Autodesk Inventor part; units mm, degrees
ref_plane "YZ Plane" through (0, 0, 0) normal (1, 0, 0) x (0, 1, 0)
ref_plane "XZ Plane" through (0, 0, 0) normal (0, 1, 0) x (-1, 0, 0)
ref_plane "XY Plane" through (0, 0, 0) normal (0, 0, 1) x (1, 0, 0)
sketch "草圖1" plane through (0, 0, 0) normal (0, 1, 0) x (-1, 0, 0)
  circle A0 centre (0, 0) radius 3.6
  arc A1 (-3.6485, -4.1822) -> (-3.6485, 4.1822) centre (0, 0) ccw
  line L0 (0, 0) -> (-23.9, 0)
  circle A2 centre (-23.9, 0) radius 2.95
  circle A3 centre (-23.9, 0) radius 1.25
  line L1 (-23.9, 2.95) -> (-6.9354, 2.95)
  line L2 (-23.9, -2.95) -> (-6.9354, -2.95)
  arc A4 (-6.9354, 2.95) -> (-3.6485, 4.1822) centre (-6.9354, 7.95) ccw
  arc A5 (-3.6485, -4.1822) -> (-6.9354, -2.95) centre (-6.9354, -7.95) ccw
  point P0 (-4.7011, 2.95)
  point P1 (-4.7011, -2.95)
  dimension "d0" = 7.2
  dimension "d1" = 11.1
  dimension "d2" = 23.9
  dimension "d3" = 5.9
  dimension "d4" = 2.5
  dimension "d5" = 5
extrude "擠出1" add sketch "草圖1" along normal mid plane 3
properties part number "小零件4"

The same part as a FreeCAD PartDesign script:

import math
import FreeCAD as App
import Part
import Sketcher
Q = App.Units.Quantity

doc = App.newDocument("Part")
params = doc.addObject("Spreadsheet::Sheet", "Params")
for row, (alias, value) in enumerate([
    ("sketch1_radius", "5 mm"),
    ("sketch1_diameter", "7.2 mm"),
    ("sketch1_diameter2", "2.5 mm"),
    ("sketch1_radius2", "2.95 mm"),
    ("sketch1_radius3", "5.55 mm"),
    ("pad1_length", "3 mm"),
], start=1):
    params.set(f"A{row}", alias)
    params.set(f"B{row}", "=" + value)
    params.setAlias(f"B{row}", alias)

body = doc.addObject("PartDesign::Body", "Body")

# Sketch on XZ plane
sketch1 = body.newObject("Sketcher::SketchObject", "Sketch")
sketch1.AttachmentSupport = (doc.getObject("XZ_Plane"), [""])
sketch1.MapMode = "FlatFace"
sketch1.addGeometry([
    Part.LineSegment(App.Vector(6.9, 3, 0), App.Vector(23.9, 3, 0)),  # 0
    Part.ArcOfCircle(Part.Circle(App.Vector(23.9, 0, 0), App.Vector(0, 0, 1), 3), math.radians(-90), math.radians(90)),  # 1
    Part.LineSegment(App.Vector(23.9, -3, 0), App.Vector(6.9, -3, 0)),  # 2
    Part.ArcOfCircle(Part.Circle(App.Vector(6.9, -8, 0), App.Vector(0, 0, 1), 5), math.radians(90), math.radians(131)),  # 3
    Part.ArcOfCircle(Part.Circle(App.Vector(0, 0, 0), App.Vector(0, 0, 1), 5.5), math.radians(49), math.radians(311)),  # 4
    Part.ArcOfCircle(Part.Circle(App.Vector(6.9, 8, 0), App.Vector(0, 0, 1), 5), math.radians(-131), math.radians(-90)),  # 5
    Part.Circle(App.Vector(0, 0, 0), App.Vector(0, 0, 1), 3.6),  # 6
    Part.Circle(App.Vector(23.9, 0, 0), App.Vector(0, 0, 1), 1.2),  # 7
], False)
sketch1.addConstraint([
    Sketcher.Constraint("Tangent", 0, 2, 1, 2),
    Sketcher.Constraint("Tangent", 1, 1, 2, 1),
    Sketcher.Constraint("Tangent", 2, 2, 3, 1),
    Sketcher.Constraint("Tangent", 3, 2, 4, 2),
    Sketcher.Constraint("Tangent", 4, 1, 5, 1),
    Sketcher.Constraint("Tangent", 5, 2, 0, 1),
    Sketcher.Constraint("Horizontal", 0),
    Sketcher.Constraint("Horizontal", 2),
    Sketcher.Constraint("Coincident", 4, 3, -1, 1),
    Sketcher.Constraint("Coincident", 6, 3, -1, 1),
    Sketcher.Constraint("Coincident", 7, 3, 1, 3),
    Sketcher.Constraint("Equal", 3, 5),
    Sketcher.Constraint("PointOnObject", 1, 3, -1),
    Sketcher.Constraint("Radius", 3, Q("5 mm")),
    Sketcher.Constraint("Diameter", 6, Q("7.2 mm")),
    Sketcher.Constraint("Diameter", 7, Q("2.5 mm")),
    Sketcher.Constraint("Radius", 1, Q("2.95 mm")),
    Sketcher.Constraint("Radius", 4, Q("5.55 mm")),
    Sketcher.Constraint("DistanceX", -1, 1, 1, 3, Q("23.9 mm")),
])
sketch1.setExpression("Constraints[13]", "Params.sketch1_radius")
sketch1.setExpression("Constraints[14]", "Params.sketch1_diameter")
sketch1.setExpression("Constraints[15]", "Params.sketch1_diameter2")
sketch1.setExpression("Constraints[16]", "Params.sketch1_radius2")
sketch1.setExpression("Constraints[17]", "Params.sketch1_radius3")
pad1 = body.newObject("PartDesign::Pad", "Pad")
pad1.Profile = sketch1
pad1.setExpression("Length", "Params.pad1_length")
pad1.Midplane = True

doc.recompute()
